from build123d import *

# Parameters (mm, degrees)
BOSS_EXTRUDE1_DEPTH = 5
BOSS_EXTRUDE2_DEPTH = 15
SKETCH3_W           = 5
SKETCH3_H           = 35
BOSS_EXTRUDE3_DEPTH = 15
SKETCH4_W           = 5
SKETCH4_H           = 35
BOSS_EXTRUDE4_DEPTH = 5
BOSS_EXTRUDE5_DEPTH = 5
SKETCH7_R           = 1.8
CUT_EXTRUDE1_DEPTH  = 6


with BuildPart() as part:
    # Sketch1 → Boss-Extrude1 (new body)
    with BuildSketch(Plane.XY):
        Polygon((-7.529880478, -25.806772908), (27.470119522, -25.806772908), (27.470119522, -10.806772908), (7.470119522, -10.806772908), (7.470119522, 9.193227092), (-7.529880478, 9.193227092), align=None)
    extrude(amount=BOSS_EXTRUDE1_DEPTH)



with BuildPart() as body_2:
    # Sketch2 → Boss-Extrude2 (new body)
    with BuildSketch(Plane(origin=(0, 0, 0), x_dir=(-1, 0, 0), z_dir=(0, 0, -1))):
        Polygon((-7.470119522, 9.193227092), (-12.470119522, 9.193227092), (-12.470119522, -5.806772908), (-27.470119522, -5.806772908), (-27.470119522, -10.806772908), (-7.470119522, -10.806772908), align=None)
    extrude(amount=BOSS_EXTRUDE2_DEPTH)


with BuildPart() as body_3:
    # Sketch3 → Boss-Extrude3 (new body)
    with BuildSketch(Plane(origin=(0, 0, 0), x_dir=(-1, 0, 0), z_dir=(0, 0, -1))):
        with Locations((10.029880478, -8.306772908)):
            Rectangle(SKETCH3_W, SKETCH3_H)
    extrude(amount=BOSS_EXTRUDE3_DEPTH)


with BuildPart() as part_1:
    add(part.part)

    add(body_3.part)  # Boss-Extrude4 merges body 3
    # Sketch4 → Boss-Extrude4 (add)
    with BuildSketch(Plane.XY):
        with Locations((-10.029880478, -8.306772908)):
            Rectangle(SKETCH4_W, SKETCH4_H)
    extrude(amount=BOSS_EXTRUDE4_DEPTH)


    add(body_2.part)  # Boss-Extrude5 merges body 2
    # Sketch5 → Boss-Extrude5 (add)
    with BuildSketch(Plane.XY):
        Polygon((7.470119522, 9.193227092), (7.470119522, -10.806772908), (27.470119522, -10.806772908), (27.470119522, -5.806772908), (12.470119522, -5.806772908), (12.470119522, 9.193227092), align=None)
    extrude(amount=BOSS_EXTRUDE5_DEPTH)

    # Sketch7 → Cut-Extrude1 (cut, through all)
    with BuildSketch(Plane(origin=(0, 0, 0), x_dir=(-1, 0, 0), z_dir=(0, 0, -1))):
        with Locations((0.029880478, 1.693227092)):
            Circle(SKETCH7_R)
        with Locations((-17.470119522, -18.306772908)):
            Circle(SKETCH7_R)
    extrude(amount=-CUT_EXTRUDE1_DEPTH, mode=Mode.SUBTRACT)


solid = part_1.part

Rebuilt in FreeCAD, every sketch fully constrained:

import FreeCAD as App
import Part
import Sketcher
from FreeCAD import Vector


def add_polygon(sketch, points):
    """Adds a closed chain of lines whose ends are joined by coincident constraints."""
    first, n = sketch.GeometryCount, len(points)
    for a, b in zip(points, points[1:] + points[:1]):
        sketch.addGeometry(Part.LineSegment(App.Vector(*a, 0), App.Vector(*b, 0)), False)
    for i in range(n):
        sketch.addConstraint(Sketcher.Constraint("Coincident", first + i, 2, first + (i + 1) % n, 1))

doc = App.newDocument("Part")
body = doc.addObject("PartDesign::Body", "Body")

# Sketch on XY plane
sketch1 = body.newObject("Sketcher::SketchObject", "Sketch")
sketch1.AttachmentSupport = (doc.getObject("XY_Plane"), [""])
sketch1.MapMode = "FlatFace"
add_polygon(sketch1, [(-7.52988, -25.806773), (27.47012, -25.806773), (27.47012, -10.806773), (7.47012, -10.806773), (7.47012, 9.193227), (-7.52988, 9.193227)])  # lines 0-5
sketch1.addConstraint([
    Sketcher.Constraint("Horizontal", 0),
    Sketcher.Constraint("Vertical", 1),
    Sketcher.Constraint("Horizontal", 2),
    Sketcher.Constraint("Vertical", 3),
    Sketcher.Constraint("Horizontal", 4),
    Sketcher.Constraint("Vertical", 5),
    Sketcher.Constraint("Equal", 4, 1),
    Sketcher.Constraint("Equal", 2, 3),
    Sketcher.Constraint("DistanceX", 0, 1, 0, 2, 35.0),
    Sketcher.Constraint("DistanceX", 2, 2, 2, 1, 20.0),
    Sketcher.Constraint("DistanceX", -1, 1, 0, 2, 27.47012),
    Sketcher.Constraint("DistanceY", 0, 2, -1, 1, 25.806773),
])
pad1 = body.newObject("PartDesign::Pad", "Pad")
pad1.Profile = sketch1
pad1.Length = 5
body2 = doc.addObject("PartDesign::Body", "Body001")

# Sketch on XY plane
sketch2 = body2.newObject("Sketcher::SketchObject", "Sketch001")
sketch2.AttachmentSupport = (doc.getObject("XY_Plane001"), [""])
sketch2.MapMode = "FlatFace"
add_polygon(sketch2, [(7.47012, 9.193227), (12.47012, 9.193227), (12.47012, -5.806773), (27.47012, -5.806773), (27.47012, -10.806773), (7.47012, -10.806773)])  # lines 0-5
sketch2.addConstraint([
    Sketcher.Constraint("Horizontal", 0),
    Sketcher.Constraint("Vertical", 1),
    Sketcher.Constraint("Horizontal", 2),
    Sketcher.Constraint("Vertical", 3),
    Sketcher.Constraint("Horizontal", 4),
    Sketcher.Constraint("Vertical", 5),
    Sketcher.Constraint("Equal", 2, 1),
    Sketcher.Constraint("Equal", 0, 3),
    Sketcher.Constraint("DistanceX", 0, 1, 0, 2, 5.0),
    Sketcher.Constraint("DistanceX", 2, 1, 2, 2, 15.0),
    Sketcher.Constraint("DistanceX", -1, 1, 0, 2, 12.47012),
    Sketcher.Constraint("DistanceY", -1, 1, 0, 2, 9.193227),
])
pad2 = body2.newObject("PartDesign::Pad", "Pad001")
pad2.Profile = sketch2
pad2.Length = 15
pad2.Reversed = True
body3 = doc.addObject("PartDesign::Body", "Body002")

# Sketch on XY plane
sketch3 = body3.newObject("Sketcher::SketchObject", "Sketch002")
sketch3.AttachmentSupport = (doc.getObject("XY_Plane002"), [""])
sketch3.MapMode = "FlatFace"
add_polygon(sketch3, [(-7.52988, 9.193227), (-7.52988, -25.806773), (-12.52988, -25.806773), (-12.52988, 9.193227)])  # lines 0-3
sketch3.addConstraint([
    Sketcher.Constraint("Vertical", 0),
    Sketcher.Constraint("Horizontal", 1),
    Sketcher.Constraint("Vertical", 2),
    Sketcher.Constraint("Horizontal", 3),
    Sketcher.Constraint("DistanceX", 1, 2, 1, 1, 5.0),
    Sketcher.Constraint("DistanceY", 0, 2, 0, 1, 35.0),
    Sketcher.Constraint("DistanceX", 0, 2, -1, 1, 7.52988),
    Sketcher.Constraint("DistanceY", 0, 2, -1, 1, 25.806773),
])
pad3 = body3.newObject("PartDesign::Pad", "Pad002")
pad3.Profile = sketch3
pad3.Length = 15
pad3.Reversed = True
body.AllowCompound = True
doc.recompute()

boolean = body.newObject("PartDesign::Boolean", "Boolean")
boolean.Type = "Fuse"
boolean.addObjects([body3])

# Sketch on XY plane
sketch4 = body.newObject("Sketcher::SketchObject", "Sketch003")
sketch4.AttachmentSupport = (doc.getObject("XY_Plane"), [""])
sketch4.MapMode = "FlatFace"
add_polygon(sketch4, [(-12.52988, 9.193227), (-12.52988, -25.806773), (-7.52988, -25.806773), (-7.52988, 9.193227)])  # lines 0-3
sketch4.addConstraint([
    Sketcher.Constraint("Vertical", 0),
    Sketcher.Constraint("Horizontal", 1),
    Sketcher.Constraint("Vertical", 2),
    Sketcher.Constraint("Horizontal", 3),
    Sketcher.Constraint("DistanceX", 1, 1, 1, 2, 5.0),
    Sketcher.Constraint("DistanceY", 0, 2, 0, 1, 35.0),
    Sketcher.Constraint("DistanceX", 0, 2, -1, 1, 12.52988),
    Sketcher.Constraint("DistanceY", 0, 2, -1, 1, 25.806773),
])
pad4 = body.newObject("PartDesign::Pad", "Pad003")
pad4.Profile = sketch4
pad4.Length = 5
doc.recompute()

boolean2 = body.newObject("PartDesign::Boolean", "Boolean001")
boolean2.Type = "Fuse"
boolean2.addObjects([body2])

# Sketch on XY plane
sketch5 = body.newObject("Sketcher::SketchObject", "Sketch004")
sketch5.AttachmentSupport = (doc.getObject("XY_Plane"), [""])
sketch5.MapMode = "FlatFace"
add_polygon(sketch5, [(7.47012, 9.193227), (7.47012, -10.806773), (27.47012, -10.806773), (27.47012, -5.806773), (12.47012, -5.806773), (12.47012, 9.193227)])  # lines 0-5
sketch5.addConstraint([
    Sketcher.Constraint("Vertical", 0),
    Sketcher.Constraint("Horizontal", 1),
    Sketcher.Constraint("Vertical", 2),
    Sketcher.Constraint("Horizontal", 3),
    Sketcher.Constraint("Vertical", 4),
    Sketcher.Constraint("Horizontal", 5),
    Sketcher.Constraint("Equal", 1, 0),
    Sketcher.Constraint("Equal", 5, 2),
    Sketcher.Constraint("DistanceX", 1, 1, 1, 2, 20.0),
    Sketcher.Constraint("DistanceX", 3, 2, 3, 1, 15.0),
    Sketcher.Constraint("DistanceX", -1, 1, 0, 2, 7.47012),
    Sketcher.Constraint("DistanceY", 0, 2, -1, 1, 10.806773),
])
pad5 = body.newObject("PartDesign::Pad", "Pad004")
pad5.Profile = sketch5
pad5.Length = 5

# Sketch on XY plane
sketch6 = body.newObject("Sketcher::SketchObject", "Sketch005")
sketch6.AttachmentSupport = (doc.getObject("XY_Plane"), [""])
sketch6.MapMode = "FlatFace"
sketch6.addGeometry([
    Part.Circle(Vector(-0.02988, 1.693227, 0), Vector(0, 0, 1), 1.8),
    Part.Circle(Vector(17.47012, -18.306773, 0), Vector(0, 0, 1), 1.8),
], False)
sketch6.addConstraint([
    Sketcher.Constraint("Equal", 0, 1),
    Sketcher.Constraint("Diameter", 0, 3.6),
    Sketcher.Constraint("DistanceY", 1, 3, 0, 3, 20.0),
    Sketcher.Constraint("DistanceX", 0, 3, 1, 3, 17.5),
    Sketcher.Constraint("DistanceX", 0, 3, -1, 1, 0.02988),
    Sketcher.Constraint("DistanceY", -1, 1, 0, 3, 1.693227),
])
pocket1 = body.newObject("PartDesign::Pocket", "Pocket")
pocket1.Profile = sketch6
pocket1.Type = "ThroughAll"
pocket1.Reversed = True

doc.recompute()
